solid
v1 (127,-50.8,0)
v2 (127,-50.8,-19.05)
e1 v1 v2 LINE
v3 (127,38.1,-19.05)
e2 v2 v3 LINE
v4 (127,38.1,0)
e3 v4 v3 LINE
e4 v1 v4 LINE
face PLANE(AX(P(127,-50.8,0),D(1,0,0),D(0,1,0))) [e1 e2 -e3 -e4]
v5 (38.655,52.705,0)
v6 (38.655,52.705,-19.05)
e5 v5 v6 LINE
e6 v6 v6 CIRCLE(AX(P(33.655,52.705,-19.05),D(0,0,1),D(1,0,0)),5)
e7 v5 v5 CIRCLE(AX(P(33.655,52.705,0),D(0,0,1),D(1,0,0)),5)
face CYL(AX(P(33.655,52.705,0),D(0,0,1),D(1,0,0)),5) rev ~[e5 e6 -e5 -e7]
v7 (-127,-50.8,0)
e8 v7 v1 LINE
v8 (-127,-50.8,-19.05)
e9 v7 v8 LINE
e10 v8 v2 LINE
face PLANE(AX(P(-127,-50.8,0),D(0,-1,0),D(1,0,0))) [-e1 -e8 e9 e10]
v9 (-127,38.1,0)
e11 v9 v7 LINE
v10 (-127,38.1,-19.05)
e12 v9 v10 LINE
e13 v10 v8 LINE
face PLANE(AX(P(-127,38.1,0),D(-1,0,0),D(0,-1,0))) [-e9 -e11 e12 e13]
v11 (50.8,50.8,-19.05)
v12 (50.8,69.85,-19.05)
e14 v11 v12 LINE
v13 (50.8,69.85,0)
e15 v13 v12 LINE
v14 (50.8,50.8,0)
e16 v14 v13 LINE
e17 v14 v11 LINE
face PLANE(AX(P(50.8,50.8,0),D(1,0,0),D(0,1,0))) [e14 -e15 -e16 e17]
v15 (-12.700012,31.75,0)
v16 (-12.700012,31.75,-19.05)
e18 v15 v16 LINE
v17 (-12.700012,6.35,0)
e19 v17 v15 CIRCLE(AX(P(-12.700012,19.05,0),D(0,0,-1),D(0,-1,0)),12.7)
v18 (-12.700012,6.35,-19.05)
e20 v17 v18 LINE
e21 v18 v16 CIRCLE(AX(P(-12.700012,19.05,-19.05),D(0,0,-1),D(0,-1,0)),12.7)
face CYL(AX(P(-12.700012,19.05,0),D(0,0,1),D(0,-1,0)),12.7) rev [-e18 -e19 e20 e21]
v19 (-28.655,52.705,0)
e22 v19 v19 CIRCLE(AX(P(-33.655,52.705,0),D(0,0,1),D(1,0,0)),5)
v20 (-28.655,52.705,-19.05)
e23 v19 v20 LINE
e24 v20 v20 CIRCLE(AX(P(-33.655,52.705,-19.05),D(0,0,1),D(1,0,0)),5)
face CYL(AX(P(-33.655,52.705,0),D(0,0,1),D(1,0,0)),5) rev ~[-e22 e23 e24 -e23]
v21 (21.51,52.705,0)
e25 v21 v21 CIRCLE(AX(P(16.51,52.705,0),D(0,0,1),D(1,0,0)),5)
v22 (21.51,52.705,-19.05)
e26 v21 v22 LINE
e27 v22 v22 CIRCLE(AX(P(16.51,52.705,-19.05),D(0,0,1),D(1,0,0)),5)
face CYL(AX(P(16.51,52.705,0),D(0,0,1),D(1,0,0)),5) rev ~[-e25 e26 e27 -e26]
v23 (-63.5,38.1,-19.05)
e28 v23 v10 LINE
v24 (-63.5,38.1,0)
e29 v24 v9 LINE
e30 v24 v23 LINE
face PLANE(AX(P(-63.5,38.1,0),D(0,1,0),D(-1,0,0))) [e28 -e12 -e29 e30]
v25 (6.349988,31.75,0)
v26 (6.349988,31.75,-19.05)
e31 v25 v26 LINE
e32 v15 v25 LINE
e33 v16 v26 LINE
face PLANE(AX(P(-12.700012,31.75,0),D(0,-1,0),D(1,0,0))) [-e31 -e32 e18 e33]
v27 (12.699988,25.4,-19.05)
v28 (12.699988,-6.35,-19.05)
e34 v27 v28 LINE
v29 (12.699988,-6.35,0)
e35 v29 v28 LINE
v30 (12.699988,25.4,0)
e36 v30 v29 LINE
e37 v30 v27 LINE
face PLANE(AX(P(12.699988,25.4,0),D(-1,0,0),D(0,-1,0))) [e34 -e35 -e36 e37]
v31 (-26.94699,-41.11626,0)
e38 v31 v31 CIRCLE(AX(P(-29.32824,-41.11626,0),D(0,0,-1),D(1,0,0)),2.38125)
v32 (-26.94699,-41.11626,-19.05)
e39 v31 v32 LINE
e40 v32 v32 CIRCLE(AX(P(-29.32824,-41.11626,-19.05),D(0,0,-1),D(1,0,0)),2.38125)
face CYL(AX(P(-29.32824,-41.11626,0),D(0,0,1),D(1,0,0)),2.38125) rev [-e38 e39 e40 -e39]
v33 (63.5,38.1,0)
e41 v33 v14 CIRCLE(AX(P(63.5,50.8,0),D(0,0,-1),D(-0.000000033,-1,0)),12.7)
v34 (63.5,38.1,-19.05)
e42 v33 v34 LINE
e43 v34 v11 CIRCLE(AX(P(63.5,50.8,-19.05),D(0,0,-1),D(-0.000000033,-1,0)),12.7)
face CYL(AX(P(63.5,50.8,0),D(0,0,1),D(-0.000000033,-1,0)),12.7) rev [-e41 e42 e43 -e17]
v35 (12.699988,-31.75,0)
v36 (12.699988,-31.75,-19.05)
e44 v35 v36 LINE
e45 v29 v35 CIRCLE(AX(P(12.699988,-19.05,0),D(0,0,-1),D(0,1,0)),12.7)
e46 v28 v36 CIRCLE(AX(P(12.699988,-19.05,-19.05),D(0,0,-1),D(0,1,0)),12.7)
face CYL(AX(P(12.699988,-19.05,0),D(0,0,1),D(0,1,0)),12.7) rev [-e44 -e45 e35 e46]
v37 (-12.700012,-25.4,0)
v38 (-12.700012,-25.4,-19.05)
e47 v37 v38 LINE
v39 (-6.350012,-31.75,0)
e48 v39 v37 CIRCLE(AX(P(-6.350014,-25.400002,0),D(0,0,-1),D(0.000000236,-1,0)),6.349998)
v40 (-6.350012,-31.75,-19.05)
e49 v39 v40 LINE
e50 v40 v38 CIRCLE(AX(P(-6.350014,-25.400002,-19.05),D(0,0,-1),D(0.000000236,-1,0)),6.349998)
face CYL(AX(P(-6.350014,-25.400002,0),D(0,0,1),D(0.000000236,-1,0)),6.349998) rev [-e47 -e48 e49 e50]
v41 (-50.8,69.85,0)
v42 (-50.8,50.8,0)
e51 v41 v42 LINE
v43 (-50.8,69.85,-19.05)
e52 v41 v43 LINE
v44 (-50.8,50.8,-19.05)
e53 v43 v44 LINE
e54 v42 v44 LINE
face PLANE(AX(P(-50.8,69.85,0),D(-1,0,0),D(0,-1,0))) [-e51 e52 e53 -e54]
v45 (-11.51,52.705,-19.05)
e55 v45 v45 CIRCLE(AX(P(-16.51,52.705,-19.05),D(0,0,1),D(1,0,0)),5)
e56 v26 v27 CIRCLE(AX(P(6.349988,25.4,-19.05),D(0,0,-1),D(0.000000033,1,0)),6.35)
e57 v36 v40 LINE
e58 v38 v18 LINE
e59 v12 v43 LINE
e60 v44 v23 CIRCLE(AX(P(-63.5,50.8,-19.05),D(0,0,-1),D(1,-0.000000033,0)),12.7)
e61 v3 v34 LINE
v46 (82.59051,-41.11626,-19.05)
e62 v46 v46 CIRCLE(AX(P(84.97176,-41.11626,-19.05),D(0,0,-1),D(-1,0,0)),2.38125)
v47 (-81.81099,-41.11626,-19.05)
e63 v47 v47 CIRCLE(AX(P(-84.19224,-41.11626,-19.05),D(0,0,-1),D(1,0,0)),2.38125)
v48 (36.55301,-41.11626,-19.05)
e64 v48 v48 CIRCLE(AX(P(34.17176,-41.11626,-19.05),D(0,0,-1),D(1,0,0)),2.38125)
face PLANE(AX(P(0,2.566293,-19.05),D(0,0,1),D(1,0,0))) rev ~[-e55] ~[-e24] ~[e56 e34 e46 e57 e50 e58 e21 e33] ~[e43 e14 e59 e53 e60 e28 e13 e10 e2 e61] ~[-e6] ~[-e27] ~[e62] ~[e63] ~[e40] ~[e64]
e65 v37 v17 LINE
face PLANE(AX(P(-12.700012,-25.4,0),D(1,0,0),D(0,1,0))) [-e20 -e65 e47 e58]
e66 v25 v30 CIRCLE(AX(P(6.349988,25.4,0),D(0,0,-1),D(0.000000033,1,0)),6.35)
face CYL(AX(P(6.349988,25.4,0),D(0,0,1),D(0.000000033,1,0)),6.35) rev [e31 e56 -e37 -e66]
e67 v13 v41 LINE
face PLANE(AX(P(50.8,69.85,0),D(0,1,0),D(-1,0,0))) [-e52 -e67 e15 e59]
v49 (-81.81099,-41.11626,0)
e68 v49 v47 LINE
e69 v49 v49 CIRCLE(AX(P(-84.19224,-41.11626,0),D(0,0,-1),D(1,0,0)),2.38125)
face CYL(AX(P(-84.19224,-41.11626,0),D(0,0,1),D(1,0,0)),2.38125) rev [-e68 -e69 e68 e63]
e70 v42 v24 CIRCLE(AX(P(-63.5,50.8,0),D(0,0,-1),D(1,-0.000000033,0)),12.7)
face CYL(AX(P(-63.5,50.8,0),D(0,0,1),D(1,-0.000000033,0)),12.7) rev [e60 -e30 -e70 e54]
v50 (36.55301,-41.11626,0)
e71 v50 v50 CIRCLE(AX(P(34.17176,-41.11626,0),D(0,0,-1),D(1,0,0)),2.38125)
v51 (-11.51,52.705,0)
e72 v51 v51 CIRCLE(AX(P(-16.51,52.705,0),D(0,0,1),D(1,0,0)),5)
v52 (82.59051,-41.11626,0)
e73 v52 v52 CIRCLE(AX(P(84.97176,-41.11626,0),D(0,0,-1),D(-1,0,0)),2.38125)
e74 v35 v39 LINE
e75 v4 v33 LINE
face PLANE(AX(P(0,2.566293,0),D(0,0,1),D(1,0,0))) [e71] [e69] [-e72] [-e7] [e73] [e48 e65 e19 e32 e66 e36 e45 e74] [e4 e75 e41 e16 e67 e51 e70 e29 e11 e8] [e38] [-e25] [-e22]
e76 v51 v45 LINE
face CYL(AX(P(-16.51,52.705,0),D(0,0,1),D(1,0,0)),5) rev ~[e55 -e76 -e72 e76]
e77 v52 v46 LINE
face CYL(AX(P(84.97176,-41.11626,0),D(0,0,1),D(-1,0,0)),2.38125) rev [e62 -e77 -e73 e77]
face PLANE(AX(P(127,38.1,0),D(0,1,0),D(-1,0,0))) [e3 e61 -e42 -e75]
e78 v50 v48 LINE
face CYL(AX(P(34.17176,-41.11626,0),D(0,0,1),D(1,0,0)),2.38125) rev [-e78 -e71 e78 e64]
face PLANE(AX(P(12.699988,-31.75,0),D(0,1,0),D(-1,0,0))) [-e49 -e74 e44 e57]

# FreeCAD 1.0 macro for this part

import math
import FreeCAD as App
import Part
import Sketcher

V = App.Vector
Q = App.Units.Quantity

doc = App.newDocument("Part")
body = doc.addObject("PartDesign::Body", "Body")

# Sketch on XY plane
sketch1 = body.newObject("Sketcher::SketchObject", "Sketch")
sketch1.AttachmentSupport = (doc.getObject("XY_Plane"), [""])
sketch1.MapMode = "FlatFace"
sketch1.addGeometry([
    Part.LineSegment(V(127, -50.8, 0), V(127, 38.1, 0)),  # 0
    Part.LineSegment(V(127, 38.1, 0), V(63.5, 38.1, 0)),  # 1
    Part.ArcOfCircle(Part.Circle(V(63.5, 50.8, 0), V(0, 0, 1), 12.7), math.radians(-180), math.radians(-90)),  # 2
    Part.LineSegment(V(50.8, 50.8, 0), V(50.8, 69.8, 0)),  # 3
    Part.LineSegment(V(50.8, 69.8, 0), V(-50.8, 69.8, 0)),  # 4
    Part.LineSegment(V(-50.8, 69.8, 0), V(-50.8, 50.8, 0)),  # 5
    Part.ArcOfCircle(Part.Circle(V(-63.5, 50.8, 0), V(0, 0, 1), 12.7), math.radians(-90), math.radians(0)),  # 6
    Part.LineSegment(V(-63.5, 38.1, 0), V(-127, 38.1, 0)),  # 7
    Part.LineSegment(V(-127, 38.1, 0), V(-127, -50.8, 0)),  # 8
    Part.LineSegment(V(-127, -50.8, 0), V(127, -50.8, 0)),  # 9
    Part.Circle(V(-84.2, -41.1, 0), V(0, 0, 1), 2.4),  # 10
    Part.Circle(V(-29.3, -41.1, 0), V(0, 0, 1), 2.4),  # 11
    Part.LineSegment(V(12.7, 25.4, 0), V(12.7, -6.3, 0)),  # 12
    Part.ArcOfCircle(Part.Circle(V(12.7, -19.1, 0), V(0, 0, 1), 12.7), math.radians(-90), math.radians(90)),  # 13
    Part.LineSegment(V(12.7, -31.8, 0), V(-6.4, -31.8, 0)),  # 14
    Part.ArcOfCircle(Part.Circle(V(-6.4, -25.4, 0), V(0, 0, 1), 6.3), math.radians(180), math.radians(270)),  # 15
    Part.LineSegment(V(-12.7, -25.4, 0), V(-12.7, 6.3, 0)),  # 16
    Part.ArcOfCircle(Part.Circle(V(-12.7, 19.1, 0), V(0, 0, 1), 12.7), math.radians(90), math.radians(270)),  # 17
    Part.LineSegment(V(-12.7, 31.8, 0), V(6.3, 31.8, 0)),  # 18
    Part.ArcOfCircle(Part.Circle(V(6.3, 25.4, 0), V(0, 0, 1), 6.4), math.radians(0), math.radians(90)),  # 19
    Part.Circle(V(34.2, -41.1, 0), V(0, 0, 1), 2.4),  # 20
    Part.Circle(V(85, -41.1, 0), V(0, 0, 1), 2.4),  # 21
    Part.Circle(V(-33.7, 52.7, 0), V(0, 0, 1), 5),  # 22
    Part.Circle(V(-16.5, 52.7, 0), V(0, 0, 1), 5),  # 23
    Part.Circle(V(16.5, 52.7, 0), V(0, 0, 1), 5),  # 24
    Part.Circle(V(33.7, 52.7, 0), V(0, 0, 1), 5),  # 25
], False)
sketch1.addConstraint([
    Sketcher.Constraint("Coincident", 0, 2, 1, 1),
    Sketcher.Constraint("Tangent", 1, 2, 2, 2),
    Sketcher.Constraint("Tangent", 2, 1, 3, 1),
    Sketcher.Constraint("Coincident", 3, 2, 4, 1),
    Sketcher.Constraint("Coincident", 4, 2, 5, 1),
    Sketcher.Constraint("Tangent", 5, 2, 6, 2),
    Sketcher.Constraint("Tangent", 6, 1, 7, 1),
    Sketcher.Constraint("Coincident", 7, 2, 8, 1),
    Sketcher.Constraint("Coincident", 8, 2, 9, 1),
    Sketcher.Constraint("Coincident", 9, 2, 0, 1),
    Sketcher.Constraint("Coincident", 12, 2, 13, 2),
    Sketcher.Constraint("Tangent", 13, 1, 14, 1),
    Sketcher.Constraint("Tangent", 14, 2, 15, 2),
    Sketcher.Constraint("Tangent", 15, 1, 16, 1),
    Sketcher.Constraint("Coincident", 16, 2, 17, 2),
    Sketcher.Constraint("Tangent", 17, 1, 18, 1),
    Sketcher.Constraint("Tangent", 18, 2, 19, 2),
    Sketcher.Constraint("Tangent", 19, 1, 12, 1),
    Sketcher.Constraint("Vertical", 0),
    Sketcher.Constraint("Horizontal", 1),
    Sketcher.Constraint("Vertical", 3),
    Sketcher.Constraint("Horizontal", 4),
    Sketcher.Constraint("Vertical", 5),
    Sketcher.Constraint("Horizontal", 7),
    Sketcher.Constraint("Vertical", 8),
    Sketcher.Constraint("Horizontal", 9),
    Sketcher.Constraint("Vertical", 12),
    Sketcher.Constraint("Horizontal", 14),
    Sketcher.Constraint("Vertical", 16),
    Sketcher.Constraint("Horizontal", 18),
    Sketcher.Constraint("Equal", 2, 6),
    Sketcher.Constraint("Equal", 10, 11),
    Sketcher.Constraint("Equal", 6, 13),
    Sketcher.Constraint("Equal", 13, 17),
    Sketcher.Constraint("Equal", 15, 19),
    Sketcher.Constraint("Equal", 11, 20),
    Sketcher.Constraint("Equal", 20, 21),
    Sketcher.Constraint("Equal", 22, 23),
    Sketcher.Constraint("Equal", 23, 24),
    Sketcher.Constraint("Equal", 24, 25),
    Sketcher.Constraint("Symmetric", 2, 3, 6, 3, -2),
    Sketcher.Constraint("Symmetric", 23, 3, 24, 3, -2),
    Sketcher.Constraint("Symmetric", 22, 3, 25, 3, -2),
    Sketcher.Constraint("Horizontal", 10, 3, 11, 3),
    Sketcher.Constraint("Horizontal", 11, 3, 20, 3),
    Sketcher.Constraint("Horizontal", 20, 3, 21, 3),
    Sketcher.Constraint("Horizontal", 22, 3, 23, 3),
    Sketcher.Constraint("Vertical", 13, 3, 12, 2),
    Sketcher.Constraint("Vertical", 17, 3, 15, 1),
    Sketcher.Constraint("Equal", 1, 7),
    Sketcher.Constraint("Equal", 18, 3),
    Sketcher.Constraint("Radius", 2, Q("0.5 in")),
    Sketcher.Constraint("DistanceX", 4, 2, 4, 1, Q("4 in")),
    Sketcher.Constraint("DistanceX", 9, 1, 9, 2, Q("10 in")),
    Sketcher.Constraint("Radius", 15, Q("0.2499999 in")),
    Sketcher.Constraint("Diameter", 10, Q("0.1875 in")),
    Sketcher.Constraint("DistanceY", 0, 1, 0, 2, Q("3.5 in")),
    Sketcher.Constraint("DistanceY", -1, 1, 2, 3, Q("2 in")),
    Sketcher.Constraint("DistanceY", 15, 3, -1, 1, Q("1.0000001 in")),
    Sketcher.Constraint("DistanceY", -1, 1, 19, 3, Q("1 in")),
    Sketcher.Constraint("DistanceX", 17, 3, 13, 3, Q("1 in")),
    Sketcher.Constraint("DistanceX", 20, 3, 21, 3, Q("2 in")),
    Sketcher.Constraint("DistanceX", 11, 3, 20, 3, Q("2.5 in")),
    Sketcher.Constraint("DistanceX", 23, 3, 24, 3, Q("1.3 in")),
    Sketcher.Constraint("Diameter", 22, 10.0),
    Sketcher.Constraint("DistanceX", 10, 3, 11, 3, Q("2.16 in")),
    Sketcher.Constraint("DistanceX", 22, 3, -1, 1, Q("1.325 in")),
    Sketcher.Constraint("DistanceY", -1, 1, 22, 3, Q("2.075 in")),
    Sketcher.Constraint("DistanceX", 10, 3, -1, 1, 84.19224),
    Sketcher.Constraint("DistanceY", 10, 3, -1, 1, 41.11626),
    Sketcher.Constraint("DistanceX", 17, 3, -1, 1, 12.700012),
])
pad1 = body.newObject("PartDesign::Pad", "Pad")
pad1.Profile = sketch1
pad1.Length = Q("0.75 in")
pad1.Reversed = True
body2 = doc.addObject("PartDesign::Body", "Body001")
doc.recompute()

body2.BaseFeature = body
doc.recompute()
body3 = doc.addObject("PartDesign::Body", "Body002")
doc.recompute()

body3.BaseFeature = body
doc.recompute()
body.Visibility = False
body2.Visibility = False

doc.recompute()
